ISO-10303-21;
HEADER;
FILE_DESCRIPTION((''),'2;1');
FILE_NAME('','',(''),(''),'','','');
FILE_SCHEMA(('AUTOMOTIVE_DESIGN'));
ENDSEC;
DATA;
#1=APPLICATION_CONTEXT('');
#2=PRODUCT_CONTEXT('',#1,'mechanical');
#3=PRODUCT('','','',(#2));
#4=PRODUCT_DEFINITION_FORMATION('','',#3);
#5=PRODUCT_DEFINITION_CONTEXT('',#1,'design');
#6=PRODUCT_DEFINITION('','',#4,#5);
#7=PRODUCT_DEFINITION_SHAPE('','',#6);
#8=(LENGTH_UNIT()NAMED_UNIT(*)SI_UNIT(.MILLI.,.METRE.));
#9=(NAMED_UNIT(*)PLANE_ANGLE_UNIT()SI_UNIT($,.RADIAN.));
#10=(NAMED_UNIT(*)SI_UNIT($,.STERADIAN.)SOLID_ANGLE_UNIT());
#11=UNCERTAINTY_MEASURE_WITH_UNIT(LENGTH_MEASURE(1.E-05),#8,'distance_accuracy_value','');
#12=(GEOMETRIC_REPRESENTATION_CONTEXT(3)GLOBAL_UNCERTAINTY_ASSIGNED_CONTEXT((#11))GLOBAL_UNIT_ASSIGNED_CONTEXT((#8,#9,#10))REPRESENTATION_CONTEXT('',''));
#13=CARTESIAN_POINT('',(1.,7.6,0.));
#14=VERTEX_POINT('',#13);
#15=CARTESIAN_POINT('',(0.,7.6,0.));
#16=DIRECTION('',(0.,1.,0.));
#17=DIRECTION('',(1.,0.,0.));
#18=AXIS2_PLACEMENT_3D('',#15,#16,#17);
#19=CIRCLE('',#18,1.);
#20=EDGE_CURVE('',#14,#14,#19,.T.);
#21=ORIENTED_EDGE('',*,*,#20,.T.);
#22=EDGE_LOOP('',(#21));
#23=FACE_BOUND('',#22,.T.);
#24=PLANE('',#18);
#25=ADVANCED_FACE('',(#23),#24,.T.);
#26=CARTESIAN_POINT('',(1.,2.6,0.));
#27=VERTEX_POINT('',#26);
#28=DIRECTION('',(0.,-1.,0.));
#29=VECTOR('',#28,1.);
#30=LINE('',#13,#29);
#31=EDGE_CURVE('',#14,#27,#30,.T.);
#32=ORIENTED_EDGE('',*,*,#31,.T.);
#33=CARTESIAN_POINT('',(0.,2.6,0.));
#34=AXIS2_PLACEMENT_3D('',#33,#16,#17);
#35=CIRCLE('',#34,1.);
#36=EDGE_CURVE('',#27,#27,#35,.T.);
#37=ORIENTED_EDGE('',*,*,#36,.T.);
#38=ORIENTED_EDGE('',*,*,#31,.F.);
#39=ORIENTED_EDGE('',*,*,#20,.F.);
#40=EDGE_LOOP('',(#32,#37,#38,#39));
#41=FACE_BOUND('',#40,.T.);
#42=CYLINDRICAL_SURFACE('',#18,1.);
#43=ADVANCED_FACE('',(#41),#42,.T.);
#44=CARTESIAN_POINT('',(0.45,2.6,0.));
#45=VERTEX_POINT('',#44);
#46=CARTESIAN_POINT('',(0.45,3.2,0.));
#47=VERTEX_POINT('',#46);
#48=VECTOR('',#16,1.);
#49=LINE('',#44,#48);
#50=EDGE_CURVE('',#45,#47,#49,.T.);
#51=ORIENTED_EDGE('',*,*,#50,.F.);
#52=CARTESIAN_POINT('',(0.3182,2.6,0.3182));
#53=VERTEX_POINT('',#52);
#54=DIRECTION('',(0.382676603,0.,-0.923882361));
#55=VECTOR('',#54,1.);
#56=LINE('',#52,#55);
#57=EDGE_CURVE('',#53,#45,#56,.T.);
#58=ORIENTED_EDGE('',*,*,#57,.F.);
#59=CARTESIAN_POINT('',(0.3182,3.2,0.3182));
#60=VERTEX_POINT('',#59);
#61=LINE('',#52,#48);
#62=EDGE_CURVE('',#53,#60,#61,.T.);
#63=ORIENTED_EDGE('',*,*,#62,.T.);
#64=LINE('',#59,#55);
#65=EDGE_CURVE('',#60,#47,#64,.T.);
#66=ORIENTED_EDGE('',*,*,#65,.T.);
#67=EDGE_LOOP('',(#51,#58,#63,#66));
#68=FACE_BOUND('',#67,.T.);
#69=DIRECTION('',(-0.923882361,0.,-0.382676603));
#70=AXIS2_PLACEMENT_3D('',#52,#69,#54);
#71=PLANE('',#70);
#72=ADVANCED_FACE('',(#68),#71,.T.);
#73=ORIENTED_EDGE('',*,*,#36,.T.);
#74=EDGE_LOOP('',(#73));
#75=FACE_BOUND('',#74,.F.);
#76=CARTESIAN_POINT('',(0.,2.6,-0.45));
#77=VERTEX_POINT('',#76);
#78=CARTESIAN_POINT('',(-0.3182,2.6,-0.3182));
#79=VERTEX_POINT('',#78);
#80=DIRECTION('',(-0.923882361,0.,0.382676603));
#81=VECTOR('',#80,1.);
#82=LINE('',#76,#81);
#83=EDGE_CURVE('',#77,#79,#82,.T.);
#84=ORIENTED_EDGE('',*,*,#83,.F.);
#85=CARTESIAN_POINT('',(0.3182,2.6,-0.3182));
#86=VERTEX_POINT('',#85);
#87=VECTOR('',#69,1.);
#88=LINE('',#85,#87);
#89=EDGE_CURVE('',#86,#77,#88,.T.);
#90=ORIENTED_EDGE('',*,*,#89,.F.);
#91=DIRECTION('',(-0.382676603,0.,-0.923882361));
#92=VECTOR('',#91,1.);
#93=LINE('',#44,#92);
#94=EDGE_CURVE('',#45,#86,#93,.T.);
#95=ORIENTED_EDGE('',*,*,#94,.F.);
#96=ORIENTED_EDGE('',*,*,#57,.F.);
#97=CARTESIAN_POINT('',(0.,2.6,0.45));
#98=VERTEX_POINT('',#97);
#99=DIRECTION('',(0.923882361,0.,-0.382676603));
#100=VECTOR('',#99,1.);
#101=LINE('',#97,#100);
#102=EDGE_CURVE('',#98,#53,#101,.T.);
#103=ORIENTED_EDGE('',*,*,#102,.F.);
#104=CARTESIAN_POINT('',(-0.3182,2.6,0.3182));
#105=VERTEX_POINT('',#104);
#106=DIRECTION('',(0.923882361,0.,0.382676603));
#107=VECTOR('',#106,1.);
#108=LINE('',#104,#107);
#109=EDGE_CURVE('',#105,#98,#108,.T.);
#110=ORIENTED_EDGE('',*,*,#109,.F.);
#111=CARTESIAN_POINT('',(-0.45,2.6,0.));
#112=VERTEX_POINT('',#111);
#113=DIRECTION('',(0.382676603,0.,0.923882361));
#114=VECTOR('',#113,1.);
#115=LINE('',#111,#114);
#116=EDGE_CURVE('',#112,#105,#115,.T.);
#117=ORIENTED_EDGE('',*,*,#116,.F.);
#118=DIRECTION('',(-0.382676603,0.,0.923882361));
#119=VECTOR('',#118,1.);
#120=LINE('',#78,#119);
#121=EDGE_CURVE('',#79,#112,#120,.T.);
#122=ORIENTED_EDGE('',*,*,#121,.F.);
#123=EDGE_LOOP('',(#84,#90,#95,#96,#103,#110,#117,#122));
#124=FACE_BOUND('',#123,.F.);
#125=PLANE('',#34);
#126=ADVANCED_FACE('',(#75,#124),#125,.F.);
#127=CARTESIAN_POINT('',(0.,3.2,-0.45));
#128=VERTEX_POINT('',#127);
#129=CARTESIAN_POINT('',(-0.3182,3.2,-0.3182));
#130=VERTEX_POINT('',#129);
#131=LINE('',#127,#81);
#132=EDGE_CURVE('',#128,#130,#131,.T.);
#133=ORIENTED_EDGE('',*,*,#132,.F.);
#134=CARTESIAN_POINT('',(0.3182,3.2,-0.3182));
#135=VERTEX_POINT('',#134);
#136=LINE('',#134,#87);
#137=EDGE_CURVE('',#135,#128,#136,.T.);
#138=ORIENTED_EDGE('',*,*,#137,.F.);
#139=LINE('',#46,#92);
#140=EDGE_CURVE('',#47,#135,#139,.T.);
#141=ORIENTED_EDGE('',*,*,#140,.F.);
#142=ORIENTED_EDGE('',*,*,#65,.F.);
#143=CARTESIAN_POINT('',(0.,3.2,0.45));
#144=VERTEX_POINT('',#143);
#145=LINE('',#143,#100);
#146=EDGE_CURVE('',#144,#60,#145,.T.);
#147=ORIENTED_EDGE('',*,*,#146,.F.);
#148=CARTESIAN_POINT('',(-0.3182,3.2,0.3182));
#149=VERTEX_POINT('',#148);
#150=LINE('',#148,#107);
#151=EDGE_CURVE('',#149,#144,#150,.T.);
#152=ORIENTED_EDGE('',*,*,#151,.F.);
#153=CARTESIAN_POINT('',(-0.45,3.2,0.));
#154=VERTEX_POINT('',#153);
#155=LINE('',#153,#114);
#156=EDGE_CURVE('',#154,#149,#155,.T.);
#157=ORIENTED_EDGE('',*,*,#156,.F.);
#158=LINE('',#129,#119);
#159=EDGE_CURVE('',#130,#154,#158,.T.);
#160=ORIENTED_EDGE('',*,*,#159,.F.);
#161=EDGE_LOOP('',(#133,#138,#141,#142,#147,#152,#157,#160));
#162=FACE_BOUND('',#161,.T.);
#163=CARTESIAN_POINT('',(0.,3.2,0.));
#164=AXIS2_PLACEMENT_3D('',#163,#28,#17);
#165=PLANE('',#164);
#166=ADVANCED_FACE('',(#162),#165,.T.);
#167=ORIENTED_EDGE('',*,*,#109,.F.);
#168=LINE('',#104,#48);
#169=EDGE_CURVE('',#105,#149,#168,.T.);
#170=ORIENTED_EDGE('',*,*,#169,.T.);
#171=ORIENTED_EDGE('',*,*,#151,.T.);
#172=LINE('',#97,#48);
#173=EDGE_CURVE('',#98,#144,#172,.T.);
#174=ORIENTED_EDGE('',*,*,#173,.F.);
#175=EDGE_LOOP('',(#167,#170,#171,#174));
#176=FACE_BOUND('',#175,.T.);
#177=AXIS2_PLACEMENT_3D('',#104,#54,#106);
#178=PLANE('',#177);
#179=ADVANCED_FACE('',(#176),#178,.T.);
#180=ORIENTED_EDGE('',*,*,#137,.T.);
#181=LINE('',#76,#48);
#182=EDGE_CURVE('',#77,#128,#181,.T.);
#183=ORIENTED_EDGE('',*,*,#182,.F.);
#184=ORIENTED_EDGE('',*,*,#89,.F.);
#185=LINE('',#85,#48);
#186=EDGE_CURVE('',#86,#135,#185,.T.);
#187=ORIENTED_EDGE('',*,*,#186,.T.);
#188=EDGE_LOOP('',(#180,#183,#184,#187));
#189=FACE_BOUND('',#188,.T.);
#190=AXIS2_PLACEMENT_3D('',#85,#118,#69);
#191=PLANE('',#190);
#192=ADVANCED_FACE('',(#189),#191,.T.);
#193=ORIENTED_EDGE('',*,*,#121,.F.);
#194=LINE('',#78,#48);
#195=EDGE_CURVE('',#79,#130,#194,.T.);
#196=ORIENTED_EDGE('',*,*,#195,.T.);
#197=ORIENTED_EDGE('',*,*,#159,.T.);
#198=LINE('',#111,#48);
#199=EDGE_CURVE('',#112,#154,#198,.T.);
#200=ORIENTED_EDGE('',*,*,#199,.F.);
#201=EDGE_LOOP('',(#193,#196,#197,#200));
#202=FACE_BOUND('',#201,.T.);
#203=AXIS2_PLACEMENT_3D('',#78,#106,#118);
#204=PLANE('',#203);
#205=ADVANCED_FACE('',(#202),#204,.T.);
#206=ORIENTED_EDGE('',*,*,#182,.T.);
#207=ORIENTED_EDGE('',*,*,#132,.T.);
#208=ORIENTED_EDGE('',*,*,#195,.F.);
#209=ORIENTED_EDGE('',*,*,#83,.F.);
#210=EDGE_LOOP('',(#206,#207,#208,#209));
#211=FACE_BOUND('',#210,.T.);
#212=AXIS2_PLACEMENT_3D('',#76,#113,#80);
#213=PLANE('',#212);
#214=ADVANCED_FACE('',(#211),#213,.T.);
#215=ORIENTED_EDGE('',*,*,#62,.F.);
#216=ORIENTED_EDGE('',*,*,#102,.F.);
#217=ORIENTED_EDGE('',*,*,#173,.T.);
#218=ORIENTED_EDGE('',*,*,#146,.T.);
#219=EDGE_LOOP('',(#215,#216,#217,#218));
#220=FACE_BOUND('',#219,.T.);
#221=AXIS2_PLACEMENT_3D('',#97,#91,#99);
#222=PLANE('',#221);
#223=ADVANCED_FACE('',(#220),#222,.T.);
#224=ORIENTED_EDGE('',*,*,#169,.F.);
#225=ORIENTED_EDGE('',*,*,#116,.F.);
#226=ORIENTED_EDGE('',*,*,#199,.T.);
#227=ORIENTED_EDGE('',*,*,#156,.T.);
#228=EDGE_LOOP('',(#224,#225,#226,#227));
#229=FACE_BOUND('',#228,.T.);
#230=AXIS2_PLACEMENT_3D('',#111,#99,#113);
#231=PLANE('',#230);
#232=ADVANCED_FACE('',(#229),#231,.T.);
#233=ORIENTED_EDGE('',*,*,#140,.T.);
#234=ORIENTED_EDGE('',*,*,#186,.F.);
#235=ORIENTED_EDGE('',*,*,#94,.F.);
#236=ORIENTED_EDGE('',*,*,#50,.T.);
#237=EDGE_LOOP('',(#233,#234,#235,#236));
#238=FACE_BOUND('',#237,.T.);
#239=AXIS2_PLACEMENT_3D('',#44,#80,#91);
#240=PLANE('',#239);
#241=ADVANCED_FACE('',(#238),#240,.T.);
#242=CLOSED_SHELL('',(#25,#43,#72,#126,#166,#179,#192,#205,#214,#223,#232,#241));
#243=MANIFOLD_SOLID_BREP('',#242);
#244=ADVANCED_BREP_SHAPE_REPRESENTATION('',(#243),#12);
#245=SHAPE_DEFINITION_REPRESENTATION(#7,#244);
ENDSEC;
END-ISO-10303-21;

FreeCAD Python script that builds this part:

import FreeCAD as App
import Part
import Sketcher

V = App.Vector
Q = App.Units.Quantity


def add_polygon(sketch, points):
    """Adds a closed chain of lines whose ends are joined by coincident constraints."""
    first, n = sketch.GeometryCount, len(points)
    for a, b in zip(points, points[1:] + points[:1]):
        sketch.addGeometry(Part.LineSegment(App.Vector(*a, 0), App.Vector(*b, 0)), False)
    for i in range(n):
        sketch.addConstraint(Sketcher.Constraint("Coincident", first + i, 2, first + (i + 1) % n, 1))

doc = App.newDocument("Part")
body = doc.addObject("PartDesign::Body", "Body")

# Sketch on XZ plane
sketch1 = body.newObject("Sketcher::SketchObject", "Sketch")
sketch1.AttachmentSupport = (doc.getObject("XZ_Plane"), [""])
sketch1.MapMode = "FlatFace"
sketch1.AttachmentOffset = App.Placement(V(0, 0, -7.6), App.Rotation())
sketch1.addGeometry(Part.Circle(V(0, 0, 0), V(0, 0, 1), 1), False)
sketch1.addConstraint([
    Sketcher.Constraint("Coincident", 0, 3, -1, 1),
    Sketcher.Constraint("Diameter", 0, 2.0),
])
pad1 = body.newObject("PartDesign::Pad", "Pad")
pad1.Profile = sketch1
pad1.Length = 5

# Sketch on XZ plane
sketch2 = body.newObject("Sketcher::SketchObject", "Sketch001")
sketch2.AttachmentSupport = (doc.getObject("XZ_Plane"), [""])
sketch2.MapMode = "FlatFace"
sketch2.AttachmentOffset = App.Placement(V(0, 0, -2.6), App.Rotation())
add_polygon(sketch2, [(0.32, -0.32), (0.45, 0), (0.32, 0.32), (0, 0.45), (-0.32, 0.32), (-0.45, 0), (-0.32, -0.32), (0, -0.45)])  # lines 0-7
sketch2.addConstraint([
    Sketcher.Constraint("Symmetric", 0, 2, 4, 2, -1, 1),
    Sketcher.Constraint("Symmetric", 1, 2, 5, 2, -1, 1),
    Sketcher.Constraint("Symmetric", 2, 2, 6, 2, -1, 1),
    Sketcher.Constraint("Symmetric", 3, 2, 7, 2, -1, 1),
    Sketcher.Constraint("Symmetric", 1, 2, 3, 2, -2),
    Sketcher.Constraint("PointOnObject", 0, 2, -1),
    Sketcher.Constraint("PointOnObject", 2, 2, -2),
    Sketcher.Constraint("Perpendicular", 0, 2),
    Sketcher.Constraint("Equal", 1, 2),
    Sketcher.Constraint("Angle", 0, Q("67.5004 deg")),
    Sketcher.Constraint("DistanceX", 4, 2, 0, 2, 0.9),
])
pocket1 = body.newObject("PartDesign::Pocket", "Pocket")
pocket1.Profile = sketch2
pocket1.Length = 0.6

doc.recompute()
